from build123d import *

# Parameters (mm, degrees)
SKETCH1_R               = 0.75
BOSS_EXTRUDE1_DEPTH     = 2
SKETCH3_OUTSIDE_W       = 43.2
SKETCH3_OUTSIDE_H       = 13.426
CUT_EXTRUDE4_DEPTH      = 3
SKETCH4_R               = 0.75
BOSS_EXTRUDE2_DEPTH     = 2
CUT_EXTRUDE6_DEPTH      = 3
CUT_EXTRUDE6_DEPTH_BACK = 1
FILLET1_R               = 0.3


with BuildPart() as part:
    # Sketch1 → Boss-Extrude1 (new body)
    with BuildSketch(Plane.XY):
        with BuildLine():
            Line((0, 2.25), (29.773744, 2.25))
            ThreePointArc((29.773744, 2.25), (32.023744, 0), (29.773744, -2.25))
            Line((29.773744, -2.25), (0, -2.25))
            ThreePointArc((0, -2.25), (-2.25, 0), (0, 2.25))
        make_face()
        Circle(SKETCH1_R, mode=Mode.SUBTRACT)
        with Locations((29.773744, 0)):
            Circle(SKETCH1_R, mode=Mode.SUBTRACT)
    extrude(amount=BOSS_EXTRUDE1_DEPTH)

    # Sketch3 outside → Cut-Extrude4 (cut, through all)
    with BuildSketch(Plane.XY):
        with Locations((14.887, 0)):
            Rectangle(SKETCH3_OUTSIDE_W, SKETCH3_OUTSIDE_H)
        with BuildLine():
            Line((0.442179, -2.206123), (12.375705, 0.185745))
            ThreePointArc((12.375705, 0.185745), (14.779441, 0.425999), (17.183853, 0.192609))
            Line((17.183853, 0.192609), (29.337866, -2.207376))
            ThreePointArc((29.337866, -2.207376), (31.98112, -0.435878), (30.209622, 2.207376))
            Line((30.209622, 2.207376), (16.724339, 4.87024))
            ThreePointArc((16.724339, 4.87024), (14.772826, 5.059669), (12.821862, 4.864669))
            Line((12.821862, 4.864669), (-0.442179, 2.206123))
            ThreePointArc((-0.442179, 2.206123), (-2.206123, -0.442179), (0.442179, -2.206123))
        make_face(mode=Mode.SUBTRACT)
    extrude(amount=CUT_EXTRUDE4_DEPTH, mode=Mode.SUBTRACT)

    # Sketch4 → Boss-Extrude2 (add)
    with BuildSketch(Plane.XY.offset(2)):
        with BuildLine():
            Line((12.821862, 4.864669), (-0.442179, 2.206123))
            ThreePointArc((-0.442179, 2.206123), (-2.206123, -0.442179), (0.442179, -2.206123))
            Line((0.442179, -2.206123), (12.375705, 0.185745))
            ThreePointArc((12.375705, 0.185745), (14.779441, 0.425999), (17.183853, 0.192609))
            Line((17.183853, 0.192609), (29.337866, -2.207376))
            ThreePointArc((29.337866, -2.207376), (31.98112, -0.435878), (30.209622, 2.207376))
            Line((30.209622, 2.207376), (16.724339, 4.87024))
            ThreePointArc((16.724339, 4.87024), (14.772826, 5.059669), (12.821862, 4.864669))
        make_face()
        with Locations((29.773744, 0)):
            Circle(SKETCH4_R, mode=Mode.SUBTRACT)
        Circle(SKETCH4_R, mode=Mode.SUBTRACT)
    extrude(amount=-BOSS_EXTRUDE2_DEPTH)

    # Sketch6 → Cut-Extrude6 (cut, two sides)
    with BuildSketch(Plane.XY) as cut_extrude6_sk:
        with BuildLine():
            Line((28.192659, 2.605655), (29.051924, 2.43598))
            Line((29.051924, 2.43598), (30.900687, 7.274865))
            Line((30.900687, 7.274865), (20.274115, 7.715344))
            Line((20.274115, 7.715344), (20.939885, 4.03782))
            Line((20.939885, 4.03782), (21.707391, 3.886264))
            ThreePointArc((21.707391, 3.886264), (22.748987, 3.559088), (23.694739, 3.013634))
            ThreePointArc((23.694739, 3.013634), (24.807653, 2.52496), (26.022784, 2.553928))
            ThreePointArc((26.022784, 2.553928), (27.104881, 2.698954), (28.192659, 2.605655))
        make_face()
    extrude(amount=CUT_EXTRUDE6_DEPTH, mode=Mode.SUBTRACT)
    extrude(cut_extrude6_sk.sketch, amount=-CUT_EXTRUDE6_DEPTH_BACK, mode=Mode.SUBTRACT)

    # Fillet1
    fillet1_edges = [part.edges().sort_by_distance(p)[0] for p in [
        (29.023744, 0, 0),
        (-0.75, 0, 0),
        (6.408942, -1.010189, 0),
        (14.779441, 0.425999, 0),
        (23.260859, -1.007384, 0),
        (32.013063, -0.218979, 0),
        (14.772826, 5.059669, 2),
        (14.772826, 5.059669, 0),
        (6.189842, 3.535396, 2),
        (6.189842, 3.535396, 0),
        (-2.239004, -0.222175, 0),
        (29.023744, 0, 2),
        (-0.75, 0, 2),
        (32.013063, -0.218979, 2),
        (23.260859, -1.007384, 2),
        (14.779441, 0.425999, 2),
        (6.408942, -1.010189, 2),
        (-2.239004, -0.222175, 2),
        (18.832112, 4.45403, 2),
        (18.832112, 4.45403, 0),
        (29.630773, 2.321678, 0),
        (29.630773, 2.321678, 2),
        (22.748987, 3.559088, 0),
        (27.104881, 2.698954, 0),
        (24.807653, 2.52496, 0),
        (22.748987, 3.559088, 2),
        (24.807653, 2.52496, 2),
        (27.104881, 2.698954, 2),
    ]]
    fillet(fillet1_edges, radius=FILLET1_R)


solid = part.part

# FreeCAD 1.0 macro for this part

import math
import FreeCAD as App
import Part
import Sketcher

V = App.Vector
Q = App.Units.Quantity


def edges_at(feature, points):
    """Names of the edges that pass closest to the given points."""
    edges = feature.Shape.Edges
    near = lambda p: min(range(len(edges)), key=lambda i: edges[i].distToShape(Part.Vertex(*p))[0])
    return sorted({f"Edge{near(p) + 1}" for p in points})

doc = App.newDocument("Part")
body = doc.addObject("PartDesign::Body", "Body")

sketch1 = body.newObject("Sketcher::SketchObject", "Sketch")
sketch1.AttachmentSupport = (doc.getObject("XY_Plane"), [""])
sketch1.MapMode = "FlatFace"
sketch1.addGeometry(Part.LineSegment(V(29.773744, 2.25, 0), V(0, 2.25, 0)), False)
sketch1.addGeometry(Part.ArcOfCircle(Part.Circle(V(0, 0, 0), V(0, 0, 1), 2.25), math.radians(90), math.radians(270)), False)
sketch1.addGeometry(Part.LineSegment(V(0, -2.25, 0), V(29.773744, -2.25, 0)), False)
sketch1.addGeometry(Part.ArcOfCircle(Part.Circle(V(29.773744, 0, 0), V(0, 0, 1), 2.25), math.radians(-90), math.radians(90)), False)
sketch1.addGeometry(Part.Circle(V(29.773744, 0, 0), V(0, 0, 1), 0.75), False)
sketch1.addGeometry(Part.Circle(V(0, 0, 0), V(0, 0, 1), 0.75), False)
sketch1.addConstraint(Sketcher.Constraint("Tangent", 0, 2, 1, 1))
sketch1.addConstraint(Sketcher.Constraint("Tangent", 1, 2, 2, 1))
sketch1.addConstraint(Sketcher.Constraint("Tangent", 2, 2, 3, 1))
sketch1.addConstraint(Sketcher.Constraint("Tangent", 3, 2, 0, 1))
sketch1.addConstraint(Sketcher.Constraint("Horizontal", 0))
sketch1.addConstraint(Sketcher.Constraint("Horizontal", 2))
sketch1.addConstraint(Sketcher.Constraint("Coincident", 1, 3, -1, 1))
sketch1.addConstraint(Sketcher.Constraint("Coincident", 5, 3, -1, 1))
sketch1.addConstraint(Sketcher.Constraint("Coincident", 4, 3, 3, 3))
sketch1.addConstraint(Sketcher.Constraint("Equal", 4, 5))
sketch1.addConstraint(Sketcher.Constraint("Diameter", 4, Q("1.5 mm")))
sketch1.addConstraint(Sketcher.Constraint("Radius", 1, Q("2.25 mm")))
sketch1.addConstraint(Sketcher.Constraint("DistanceX", 0, 2, 0, 1, Q("29.773744 mm")))
pad1 = body.newObject("PartDesign::Pad", "Pad")
pad1.Profile = sketch1
pad1.Length = 2

sketch2 = body.newObject("Sketcher::SketchObject", "Sketch001")
sketch2.AttachmentSupport = (doc.getObject("XY_Plane"), [""])
sketch2.MapMode = "FlatFace"
sketch2.addGeometry(Part.LineSegment(V(-6.713, 6.713, 0), V(-6.713, -6.713, 0)), False)
sketch2.addGeometry(Part.LineSegment(V(-6.713, -6.713, 0), V(36.487, -6.713, 0)), False)
sketch2.addGeometry(Part.LineSegment(V(36.487, -6.713, 0), V(36.487, 6.713, 0)), False)
sketch2.addGeometry(Part.LineSegment(V(36.487, 6.713, 0), V(-6.713, 6.713, 0)), False)
sketch2.addGeometry(Part.LineSegment(V(12.375705, 0.185745, 0), V(0.442179, -2.206123, 0)), False)
sketch2.addGeometry(Part.ArcOfCircle(Part.Circle(V(0, 0, 0), V(0, 0, 1), 2.25), math.radians(101.333764), math.radians(281.333764)), False)
sketch2.addGeometry(Part.LineSegment(V(-0.442179, 2.206123, 0), V(12.821862, 4.864669, 0)), False)
sketch2.addGeometry(Part.ArcOfCircle(Part.Circle(V(14.787102, -4.9403, 0), V(0, 0, 1), 9.999979), math.radians(78.829799), math.radians(101.333787)), False)
sketch2.addGeometry(Part.LineSegment(V(16.724339, 4.87024, 0), V(30.209622, 2.207376, 0)), False)
sketch2.addGeometry(Part.ArcOfCircle(Part.Circle(V(29.773744, 0, 0), V(0, 0, 1), 2.25), math.radians(-101.170169), math.radians(78.829831)), False)
sketch2.addGeometry(Part.LineSegment(V(29.337866, -2.207376, 0), V(17.183853, 0.192609, 0)), False)
sketch2.addGeometry(Part.ArcOfCircle(Part.Circle(V(14.79703, -11.894766, 0), V(0, 0, 1), 12.320778), math.radians(78.829841), math.radians(101.333747)), False)
sketch2.addConstraint(Sketcher.Constraint("Coincident", 0, 2, 1, 1))
sketch2.addConstraint(Sketcher.Constraint("Coincident", 1, 2, 2, 1))
sketch2.addConstraint(Sketcher.Constraint("Coincident", 2, 2, 3, 1))
sketch2.addConstraint(Sketcher.Constraint("Coincident", 3, 2, 0, 1))
sketch2.addConstraint(Sketcher.Constraint("Coincident", 4, 2, 5, 2))
sketch2.addConstraint(Sketcher.Constraint("Coincident", 5, 1, 6, 1))
sketch2.addConstraint(Sketcher.Constraint("Coincident", 6, 2, 7, 2))
sketch2.addConstraint(Sketcher.Constraint("Coincident", 7, 1, 8, 1))
sketch2.addConstraint(Sketcher.Constraint("Coincident", 8, 2, 9, 2))
sketch2.addConstraint(Sketcher.Constraint("Coincident", 9, 1, 10, 1))
sketch2.addConstraint(Sketcher.Constraint("Coincident", 10, 2, 11, 1))
sketch2.addConstraint(Sketcher.Constraint("Coincident", 11, 2, 4, 1))
sketch2.addConstraint(Sketcher.Constraint("Vertical", 0))
sketch2.addConstraint(Sketcher.Constraint("Horizontal", 1))
sketch2.addConstraint(Sketcher.Constraint("Vertical", 2))
sketch2.addConstraint(Sketcher.Constraint("Horizontal", 3))
sketch2.addConstraint(Sketcher.Constraint("Coincident", 5, 3, -1, 1))
sketch2.addConstraint(Sketcher.Constraint("PointOnObject", 9, 3, -1))
sketch2.addConstraint(Sketcher.Constraint("Radius", 5, Q("2.25 mm")))
sketch2.addConstraint(Sketcher.Constraint("Radius", 9, Q("2.25 mm")))
sketch2.addConstraint(Sketcher.Constraint("DistanceX", 1, 1, 1, 2, Q("43.2 mm")))
sketch2.addConstraint(Sketcher.Constraint("DistanceY", 0, 2, 0, 1, Q("13.426 mm")))
sketch2.addConstraint(Sketcher.Constraint("Radius", 7, Q("9.999979 mm")))
sketch2.addConstraint(Sketcher.Constraint("DistanceX", 0, 2, -1, 1, Q("6.713 mm")))
sketch2.addConstraint(Sketcher.Constraint("DistanceY", 0, 2, -1, 1, Q("6.713 mm")))
sketch2.addConstraint(Sketcher.Constraint("Radius", 11, Q("12.320778 mm")))
sketch2.addConstraint(Sketcher.Constraint("DistanceX", -1, 1, 7, 3, Q("14.787102 mm")))
sketch2.addConstraint(Sketcher.Constraint("DistanceY", 7, 3, -1, 1, Q("4.9403 mm")))
sketch2.addConstraint(Sketcher.Constraint("Distance", 4, Q("12.17087 mm")))
sketch2.addConstraint(Sketcher.Constraint("Distance", 8, Q("13.745679 mm")))
sketch2.addConstraint(Sketcher.Constraint("DistanceX", -1, 1, 11, 3, Q("14.79703 mm")))
sketch2.addConstraint(Sketcher.Constraint("DistanceX", -1, 1, 4, 2, Q("0.442179 mm")))
sketch2.addConstraint(Sketcher.Constraint("DistanceX", 5, 1, -1, 1, Q("0.442179 mm")))
sketch2.addConstraint(Sketcher.Constraint("DistanceY", -1, 1, 6, 2, Q("4.864669 mm")))
sketch2.addConstraint(Sketcher.Constraint("DistanceX", -1, 1, 7, 1, Q("16.724339 mm")))
sketch2.addConstraint(Sketcher.Constraint("DistanceX", -1, 1, 8, 2, Q("30.209622 mm")))
sketch2.addConstraint(Sketcher.Constraint("DistanceY", -1, 1, 10, 2, Q("0.192609 mm")))
sketch2.addConstraint(Sketcher.Constraint("DistanceX", 9, 1, 9, 3, Q("0.435878 mm")))
sketch2.addConstraint(Sketcher.Constraint("DistanceX", 7, 3, 10, 2, Q("2.396751 mm")))
pocket1 = body.newObject("PartDesign::Pocket", "Pocket")
pocket1.Profile = sketch2
pocket1.Type = "ThroughAll"
pocket1.Reversed = True

sketch3 = body.newObject("Sketcher::SketchObject", "Sketch002")
sketch3.AttachmentSupport = (doc.getObject("XY_Plane"), [""])
sketch3.MapMode = "FlatFace"
sketch3.AttachmentOffset = App.Placement(V(0, 0, 2), App.Rotation())
sketch3.addGeometry(Part.LineSegment(V(12.821862, 4.864669, 0), V(-0.442179, 2.206123, 0)), False)
sketch3.addGeometry(Part.ArcOfCircle(Part.Circle(V(0, 0, 0), V(0, 0, 1), 2.25), math.radians(101.333764), math.radians(281.333764)), False)
sketch3.addGeometry(Part.LineSegment(V(0.442179, -2.206123, 0), V(12.375705, 0.185745, 0)), False)
sketch3.addGeometry(Part.ArcOfCircle(Part.Circle(V(14.79703, -11.894766, 0), V(0, 0, 1), 12.320778), math.radians(78.829841), math.radians(101.333747)), False)
sketch3.addGeometry(Part.LineSegment(V(17.183853, 0.192609, 0), V(29.337866, -2.207376, 0)), False)
sketch3.addGeometry(Part.ArcOfCircle(Part.Circle(V(29.773744, 0, 0), V(0, 0, 1), 2.25), math.radians(-101.170169), math.radians(78.829831)), False)
sketch3.addGeometry(Part.LineSegment(V(30.209622, 2.207376, 0), V(16.724339, 4.87024, 0)), False)
sketch3.addGeometry(Part.ArcOfCircle(Part.Circle(V(14.787102, -4.9403, 0), V(0, 0, 1), 9.999979), math.radians(78.829799), math.radians(101.333787)), False)
sketch3.addGeometry(Part.Circle(V(0, 0, 0), V(0, 0, 1), 0.75), False)
sketch3.addGeometry(Part.Circle(V(29.773744, 0, 0), V(0, 0, 1), 0.75), False)
sketch3.addConstraint(Sketcher.Constraint("Coincident", 0, 2, 1, 1))
sketch3.addConstraint(Sketcher.Constraint("Coincident", 1, 2, 2, 1))
sketch3.addConstraint(Sketcher.Constraint("Coincident", 2, 2, 3, 2))
sketch3.addConstraint(Sketcher.Constraint("Coincident", 3, 1, 4, 1))
sketch3.addConstraint(Sketcher.Constraint("Coincident", 4, 2, 5, 1))
sketch3.addConstraint(Sketcher.Constraint("Coincident", 5, 2, 6, 1))
sketch3.addConstraint(Sketcher.Constraint("Coincident", 6, 2, 7, 1))
sketch3.addConstraint(Sketcher.Constraint("Coincident", 7, 2, 0, 1))
sketch3.addConstraint(Sketcher.Constraint("Coincident", 1, 3, -1, 1))
sketch3.addConstraint(Sketcher.Constraint("Coincident", 8, 3, -1, 1))
sketch3.addConstraint(Sketcher.Constraint("Coincident", 9, 3, 5, 3))
sketch3.addConstraint(Sketcher.Constraint("PointOnObject", 5, 3, -1))
sketch3.addConstraint(Sketcher.Constraint("Diameter", 8, Q("1.5 mm")))
sketch3.addConstraint(Sketcher.Constraint("Diameter", 9, Q("1.5 mm")))
sketch3.addConstraint(Sketcher.Constraint("Radius", 1, Q("2.25 mm")))
sketch3.addConstraint(Sketcher.Constraint("Radius", 5, Q("2.25 mm")))
sketch3.addConstraint(Sketcher.Constraint("Radius", 7, Q("9.999979 mm")))
sketch3.addConstraint(Sketcher.Constraint("Radius", 3, Q("12.320778 mm")))
sketch3.addConstraint(Sketcher.Constraint("DistanceX", -1, 1, 7, 3, Q("14.787102 mm")))
sketch3.addConstraint(Sketcher.Constraint("DistanceY", 7, 3, -1, 1, Q("4.9403 mm")))
sketch3.addConstraint(Sketcher.Constraint("Distance", 2, Q("12.17087 mm")))
sketch3.addConstraint(Sketcher.Constraint("Distance", 6, Q("13.745679 mm")))
sketch3.addConstraint(Sketcher.Constraint("DistanceX", -1, 1, 3, 3, Q("14.79703 mm")))
sketch3.addConstraint(Sketcher.Constraint("DistanceX", 0, 2, -1, 1, Q("0.442179 mm")))
sketch3.addConstraint(Sketcher.Constraint("DistanceX", -1, 1, 1, 2, Q("0.442179 mm")))
sketch3.addConstraint(Sketcher.Constraint("DistanceY", -1, 1, 3, 1, Q("0.192609 mm")))
sketch3.addConstraint(Sketcher.Constraint("DistanceX", -1, 1, 6, 2, Q("16.724339 mm")))
sketch3.addConstraint(Sketcher.Constraint("DistanceX", -1, 1, 7, 2, Q("12.821862 mm")))
sketch3.addConstraint(Sketcher.Constraint("DistanceY", 3, 3, 0, 2, Q("14.100889 mm")))
sketch3.addConstraint(Sketcher.Constraint("DistanceX", 3, 1, 5, 3, Q("12.589891 mm")))
sketch3.addConstraint(Sketcher.Constraint("DistanceX", 2, 2, 4, 2, Q("16.962161 mm")))
pad2 = body.newObject("PartDesign::Pad", "Pad001")
pad2.Profile = sketch3
pad2.Length = 2
pad2.Reversed = True

sketch4 = body.newObject("Sketcher::SketchObject", "Sketch003")
sketch4.AttachmentSupport = (doc.getObject("XY_Plane"), [""])
sketch4.MapMode = "FlatFace"
sketch4.addGeometry(Part.LineSegment(V(28.192659, 2.605655, 0), V(29.051924, 2.43598, 0)), False)
sketch4.addGeometry(Part.LineSegment(V(29.051924, 2.43598, 0), V(30.900687, 7.274865, 0)), False)
sketch4.addGeometry(Part.LineSegment(V(30.900687, 7.274865, 0), V(20.274115, 7.715344, 0)), False)
sketch4.addGeometry(Part.LineSegment(V(20.274115, 7.715344, 0), V(20.939885, 4.03782, 0)), False)
sketch4.addGeometry(Part.LineSegment(V(20.939885, 4.03782, 0), V(21.707391, 3.886264, 0)), False)
sketch4.addGeometry(Part.ArcOfCircle(Part.Circle(V(20.738774, -1.019018, 0), V(0, 0, 1), 5.000001), math.radians(53.758298), math.radians(78.829847)), False)
sketch4.addGeometry(Part.ArcOfCircle(Part.Circle(V(25.350078, 5.271909, 0), V(0, 0, 1), 2.799992), math.radians(-126.241807), math.radians(-76.098538)), False)
sketch4.addGeometry(Part.ArcOfCircle(Part.Circle(V(27.224041, -2.299637, 0), V(0, 0, 1), 5.000011), math.radians(78.829852), math.radians(103.901345)), False)
sketch4.addConstraint(Sketcher.Constraint("Coincident", 0, 2, 1, 1))
sketch4.addConstraint(Sketcher.Constraint("Coincident", 1, 2, 2, 1))
sketch4.addConstraint(Sketcher.Constraint("Coincident", 2, 2, 3, 1))
sketch4.addConstraint(Sketcher.Constraint("Coincident", 3, 2, 4, 1))
sketch4.addConstraint(Sketcher.Constraint("Tangent", 4, 2, 5, 2))
sketch4.addConstraint(Sketcher.Constraint("Tangent", 5, 1, 6, 1))
sketch4.addConstraint(Sketcher.Constraint("Coincident", 6, 2, 7, 2))
sketch4.addConstraint(Sketcher.Constraint("Tangent", 7, 1, 0, 1))
sketch4.addConstraint(Sketcher.Constraint("Parallel", 0, 4))
sketch4.addConstraint(Sketcher.Constraint("Radius", 5, Q("5.000001 mm")))
sketch4.addConstraint(Sketcher.Constraint("Radius", 6, Q("2.799992 mm")))
sketch4.addConstraint(Sketcher.Constraint("Radius", 7, Q("5.000011 mm")))
sketch4.addConstraint(Sketcher.Constraint("DistanceY", 7, 3, 1, 2, Q("9.574502 mm")))
sketch4.addConstraint(Sketcher.Constraint("DistanceX", -1, 1, 6, 3, Q("25.350078 mm")))
sketch4.addConstraint(Sketcher.Constraint("DistanceY", -1, 1, 6, 3, Q("5.271909 mm")))
sketch4.addConstraint(Sketcher.Constraint("DistanceX", -1, 1, 7, 3, Q("27.224041 mm")))
sketch4.addConstraint(Sketcher.Constraint("DistanceY", -1, 1, 0, 2, Q("2.43598 mm")))
sketch4.addConstraint(Sketcher.Constraint("DistanceY", -1, 1, 3, 2, Q("4.03782 mm")))
sketch4.addConstraint(Sketcher.Constraint("DistanceX", -1, 1, 4, 2, Q("21.707391 mm")))
sketch4.addConstraint(Sketcher.Constraint("DistanceX", -1, 1, 5, 1, Q("23.694739 mm")))
sketch4.addConstraint(Sketcher.Constraint("DistanceY", -1, 1, 6, 2, Q("2.553928 mm")))
sketch4.addConstraint(Sketcher.Constraint("DistanceX", 6, 3, 1, 2, Q("5.550609 mm")))
sketch4.addConstraint(Sketcher.Constraint("DistanceX", 2, 2, 5, 3, Q("0.464659 mm")))
sketch4.addConstraint(Sketcher.Constraint("DistanceY", 5, 3, 2, 2, Q("8.734362 mm")))
pocket2 = body.newObject("PartDesign::Pocket", "Pocket001")
pocket2.Profile = sketch4
pocket2.Type = "ThroughAll"
pocket2.Midplane = True
doc.recompute()

fillet = body.newObject("PartDesign::Fillet", "Fillet")
fillet.Base = (pocket2, edges_at(pocket2, [
    (29.024, 0, 0),
    (-0.75, 0, 0),
    (6.409, -1.01, 0),
    (14.779, 0.426, 0),
    (23.261, -1.007, 0),
    (31.981, -0.436, 0),
    (14.773, 5.06, 2),
    (14.773, 5.06, 0),
    (6.19, 3.535, 2),
    (6.19, 3.535, 0),
    (-2.239, -0.222, 0),
    (29.024, 0, 2),
    (-0.75, 0, 2),
    (31.981, -0.436, 2),
    (23.261, -1.007, 2),
    (14.779, 0.426, 2),
    (6.409, -1.01, 2),
    (-2.239, -0.222, 2),
    (19.047, 4.412, 2),
    (19.047, 4.412, 0),
    (29.2, 2.407, 0),
    (29.199, 2.407, 2),
    (22.749, 3.559, 0),
    (27.104, 2.699, 0),
    (24.808, 2.525, 0),
    (22.749, 3.559, 2),
    (24.808, 2.525, 2),
    (27.104, 2.699, 2),
]))
fillet.Radius = 0.3

doc.recompute()
